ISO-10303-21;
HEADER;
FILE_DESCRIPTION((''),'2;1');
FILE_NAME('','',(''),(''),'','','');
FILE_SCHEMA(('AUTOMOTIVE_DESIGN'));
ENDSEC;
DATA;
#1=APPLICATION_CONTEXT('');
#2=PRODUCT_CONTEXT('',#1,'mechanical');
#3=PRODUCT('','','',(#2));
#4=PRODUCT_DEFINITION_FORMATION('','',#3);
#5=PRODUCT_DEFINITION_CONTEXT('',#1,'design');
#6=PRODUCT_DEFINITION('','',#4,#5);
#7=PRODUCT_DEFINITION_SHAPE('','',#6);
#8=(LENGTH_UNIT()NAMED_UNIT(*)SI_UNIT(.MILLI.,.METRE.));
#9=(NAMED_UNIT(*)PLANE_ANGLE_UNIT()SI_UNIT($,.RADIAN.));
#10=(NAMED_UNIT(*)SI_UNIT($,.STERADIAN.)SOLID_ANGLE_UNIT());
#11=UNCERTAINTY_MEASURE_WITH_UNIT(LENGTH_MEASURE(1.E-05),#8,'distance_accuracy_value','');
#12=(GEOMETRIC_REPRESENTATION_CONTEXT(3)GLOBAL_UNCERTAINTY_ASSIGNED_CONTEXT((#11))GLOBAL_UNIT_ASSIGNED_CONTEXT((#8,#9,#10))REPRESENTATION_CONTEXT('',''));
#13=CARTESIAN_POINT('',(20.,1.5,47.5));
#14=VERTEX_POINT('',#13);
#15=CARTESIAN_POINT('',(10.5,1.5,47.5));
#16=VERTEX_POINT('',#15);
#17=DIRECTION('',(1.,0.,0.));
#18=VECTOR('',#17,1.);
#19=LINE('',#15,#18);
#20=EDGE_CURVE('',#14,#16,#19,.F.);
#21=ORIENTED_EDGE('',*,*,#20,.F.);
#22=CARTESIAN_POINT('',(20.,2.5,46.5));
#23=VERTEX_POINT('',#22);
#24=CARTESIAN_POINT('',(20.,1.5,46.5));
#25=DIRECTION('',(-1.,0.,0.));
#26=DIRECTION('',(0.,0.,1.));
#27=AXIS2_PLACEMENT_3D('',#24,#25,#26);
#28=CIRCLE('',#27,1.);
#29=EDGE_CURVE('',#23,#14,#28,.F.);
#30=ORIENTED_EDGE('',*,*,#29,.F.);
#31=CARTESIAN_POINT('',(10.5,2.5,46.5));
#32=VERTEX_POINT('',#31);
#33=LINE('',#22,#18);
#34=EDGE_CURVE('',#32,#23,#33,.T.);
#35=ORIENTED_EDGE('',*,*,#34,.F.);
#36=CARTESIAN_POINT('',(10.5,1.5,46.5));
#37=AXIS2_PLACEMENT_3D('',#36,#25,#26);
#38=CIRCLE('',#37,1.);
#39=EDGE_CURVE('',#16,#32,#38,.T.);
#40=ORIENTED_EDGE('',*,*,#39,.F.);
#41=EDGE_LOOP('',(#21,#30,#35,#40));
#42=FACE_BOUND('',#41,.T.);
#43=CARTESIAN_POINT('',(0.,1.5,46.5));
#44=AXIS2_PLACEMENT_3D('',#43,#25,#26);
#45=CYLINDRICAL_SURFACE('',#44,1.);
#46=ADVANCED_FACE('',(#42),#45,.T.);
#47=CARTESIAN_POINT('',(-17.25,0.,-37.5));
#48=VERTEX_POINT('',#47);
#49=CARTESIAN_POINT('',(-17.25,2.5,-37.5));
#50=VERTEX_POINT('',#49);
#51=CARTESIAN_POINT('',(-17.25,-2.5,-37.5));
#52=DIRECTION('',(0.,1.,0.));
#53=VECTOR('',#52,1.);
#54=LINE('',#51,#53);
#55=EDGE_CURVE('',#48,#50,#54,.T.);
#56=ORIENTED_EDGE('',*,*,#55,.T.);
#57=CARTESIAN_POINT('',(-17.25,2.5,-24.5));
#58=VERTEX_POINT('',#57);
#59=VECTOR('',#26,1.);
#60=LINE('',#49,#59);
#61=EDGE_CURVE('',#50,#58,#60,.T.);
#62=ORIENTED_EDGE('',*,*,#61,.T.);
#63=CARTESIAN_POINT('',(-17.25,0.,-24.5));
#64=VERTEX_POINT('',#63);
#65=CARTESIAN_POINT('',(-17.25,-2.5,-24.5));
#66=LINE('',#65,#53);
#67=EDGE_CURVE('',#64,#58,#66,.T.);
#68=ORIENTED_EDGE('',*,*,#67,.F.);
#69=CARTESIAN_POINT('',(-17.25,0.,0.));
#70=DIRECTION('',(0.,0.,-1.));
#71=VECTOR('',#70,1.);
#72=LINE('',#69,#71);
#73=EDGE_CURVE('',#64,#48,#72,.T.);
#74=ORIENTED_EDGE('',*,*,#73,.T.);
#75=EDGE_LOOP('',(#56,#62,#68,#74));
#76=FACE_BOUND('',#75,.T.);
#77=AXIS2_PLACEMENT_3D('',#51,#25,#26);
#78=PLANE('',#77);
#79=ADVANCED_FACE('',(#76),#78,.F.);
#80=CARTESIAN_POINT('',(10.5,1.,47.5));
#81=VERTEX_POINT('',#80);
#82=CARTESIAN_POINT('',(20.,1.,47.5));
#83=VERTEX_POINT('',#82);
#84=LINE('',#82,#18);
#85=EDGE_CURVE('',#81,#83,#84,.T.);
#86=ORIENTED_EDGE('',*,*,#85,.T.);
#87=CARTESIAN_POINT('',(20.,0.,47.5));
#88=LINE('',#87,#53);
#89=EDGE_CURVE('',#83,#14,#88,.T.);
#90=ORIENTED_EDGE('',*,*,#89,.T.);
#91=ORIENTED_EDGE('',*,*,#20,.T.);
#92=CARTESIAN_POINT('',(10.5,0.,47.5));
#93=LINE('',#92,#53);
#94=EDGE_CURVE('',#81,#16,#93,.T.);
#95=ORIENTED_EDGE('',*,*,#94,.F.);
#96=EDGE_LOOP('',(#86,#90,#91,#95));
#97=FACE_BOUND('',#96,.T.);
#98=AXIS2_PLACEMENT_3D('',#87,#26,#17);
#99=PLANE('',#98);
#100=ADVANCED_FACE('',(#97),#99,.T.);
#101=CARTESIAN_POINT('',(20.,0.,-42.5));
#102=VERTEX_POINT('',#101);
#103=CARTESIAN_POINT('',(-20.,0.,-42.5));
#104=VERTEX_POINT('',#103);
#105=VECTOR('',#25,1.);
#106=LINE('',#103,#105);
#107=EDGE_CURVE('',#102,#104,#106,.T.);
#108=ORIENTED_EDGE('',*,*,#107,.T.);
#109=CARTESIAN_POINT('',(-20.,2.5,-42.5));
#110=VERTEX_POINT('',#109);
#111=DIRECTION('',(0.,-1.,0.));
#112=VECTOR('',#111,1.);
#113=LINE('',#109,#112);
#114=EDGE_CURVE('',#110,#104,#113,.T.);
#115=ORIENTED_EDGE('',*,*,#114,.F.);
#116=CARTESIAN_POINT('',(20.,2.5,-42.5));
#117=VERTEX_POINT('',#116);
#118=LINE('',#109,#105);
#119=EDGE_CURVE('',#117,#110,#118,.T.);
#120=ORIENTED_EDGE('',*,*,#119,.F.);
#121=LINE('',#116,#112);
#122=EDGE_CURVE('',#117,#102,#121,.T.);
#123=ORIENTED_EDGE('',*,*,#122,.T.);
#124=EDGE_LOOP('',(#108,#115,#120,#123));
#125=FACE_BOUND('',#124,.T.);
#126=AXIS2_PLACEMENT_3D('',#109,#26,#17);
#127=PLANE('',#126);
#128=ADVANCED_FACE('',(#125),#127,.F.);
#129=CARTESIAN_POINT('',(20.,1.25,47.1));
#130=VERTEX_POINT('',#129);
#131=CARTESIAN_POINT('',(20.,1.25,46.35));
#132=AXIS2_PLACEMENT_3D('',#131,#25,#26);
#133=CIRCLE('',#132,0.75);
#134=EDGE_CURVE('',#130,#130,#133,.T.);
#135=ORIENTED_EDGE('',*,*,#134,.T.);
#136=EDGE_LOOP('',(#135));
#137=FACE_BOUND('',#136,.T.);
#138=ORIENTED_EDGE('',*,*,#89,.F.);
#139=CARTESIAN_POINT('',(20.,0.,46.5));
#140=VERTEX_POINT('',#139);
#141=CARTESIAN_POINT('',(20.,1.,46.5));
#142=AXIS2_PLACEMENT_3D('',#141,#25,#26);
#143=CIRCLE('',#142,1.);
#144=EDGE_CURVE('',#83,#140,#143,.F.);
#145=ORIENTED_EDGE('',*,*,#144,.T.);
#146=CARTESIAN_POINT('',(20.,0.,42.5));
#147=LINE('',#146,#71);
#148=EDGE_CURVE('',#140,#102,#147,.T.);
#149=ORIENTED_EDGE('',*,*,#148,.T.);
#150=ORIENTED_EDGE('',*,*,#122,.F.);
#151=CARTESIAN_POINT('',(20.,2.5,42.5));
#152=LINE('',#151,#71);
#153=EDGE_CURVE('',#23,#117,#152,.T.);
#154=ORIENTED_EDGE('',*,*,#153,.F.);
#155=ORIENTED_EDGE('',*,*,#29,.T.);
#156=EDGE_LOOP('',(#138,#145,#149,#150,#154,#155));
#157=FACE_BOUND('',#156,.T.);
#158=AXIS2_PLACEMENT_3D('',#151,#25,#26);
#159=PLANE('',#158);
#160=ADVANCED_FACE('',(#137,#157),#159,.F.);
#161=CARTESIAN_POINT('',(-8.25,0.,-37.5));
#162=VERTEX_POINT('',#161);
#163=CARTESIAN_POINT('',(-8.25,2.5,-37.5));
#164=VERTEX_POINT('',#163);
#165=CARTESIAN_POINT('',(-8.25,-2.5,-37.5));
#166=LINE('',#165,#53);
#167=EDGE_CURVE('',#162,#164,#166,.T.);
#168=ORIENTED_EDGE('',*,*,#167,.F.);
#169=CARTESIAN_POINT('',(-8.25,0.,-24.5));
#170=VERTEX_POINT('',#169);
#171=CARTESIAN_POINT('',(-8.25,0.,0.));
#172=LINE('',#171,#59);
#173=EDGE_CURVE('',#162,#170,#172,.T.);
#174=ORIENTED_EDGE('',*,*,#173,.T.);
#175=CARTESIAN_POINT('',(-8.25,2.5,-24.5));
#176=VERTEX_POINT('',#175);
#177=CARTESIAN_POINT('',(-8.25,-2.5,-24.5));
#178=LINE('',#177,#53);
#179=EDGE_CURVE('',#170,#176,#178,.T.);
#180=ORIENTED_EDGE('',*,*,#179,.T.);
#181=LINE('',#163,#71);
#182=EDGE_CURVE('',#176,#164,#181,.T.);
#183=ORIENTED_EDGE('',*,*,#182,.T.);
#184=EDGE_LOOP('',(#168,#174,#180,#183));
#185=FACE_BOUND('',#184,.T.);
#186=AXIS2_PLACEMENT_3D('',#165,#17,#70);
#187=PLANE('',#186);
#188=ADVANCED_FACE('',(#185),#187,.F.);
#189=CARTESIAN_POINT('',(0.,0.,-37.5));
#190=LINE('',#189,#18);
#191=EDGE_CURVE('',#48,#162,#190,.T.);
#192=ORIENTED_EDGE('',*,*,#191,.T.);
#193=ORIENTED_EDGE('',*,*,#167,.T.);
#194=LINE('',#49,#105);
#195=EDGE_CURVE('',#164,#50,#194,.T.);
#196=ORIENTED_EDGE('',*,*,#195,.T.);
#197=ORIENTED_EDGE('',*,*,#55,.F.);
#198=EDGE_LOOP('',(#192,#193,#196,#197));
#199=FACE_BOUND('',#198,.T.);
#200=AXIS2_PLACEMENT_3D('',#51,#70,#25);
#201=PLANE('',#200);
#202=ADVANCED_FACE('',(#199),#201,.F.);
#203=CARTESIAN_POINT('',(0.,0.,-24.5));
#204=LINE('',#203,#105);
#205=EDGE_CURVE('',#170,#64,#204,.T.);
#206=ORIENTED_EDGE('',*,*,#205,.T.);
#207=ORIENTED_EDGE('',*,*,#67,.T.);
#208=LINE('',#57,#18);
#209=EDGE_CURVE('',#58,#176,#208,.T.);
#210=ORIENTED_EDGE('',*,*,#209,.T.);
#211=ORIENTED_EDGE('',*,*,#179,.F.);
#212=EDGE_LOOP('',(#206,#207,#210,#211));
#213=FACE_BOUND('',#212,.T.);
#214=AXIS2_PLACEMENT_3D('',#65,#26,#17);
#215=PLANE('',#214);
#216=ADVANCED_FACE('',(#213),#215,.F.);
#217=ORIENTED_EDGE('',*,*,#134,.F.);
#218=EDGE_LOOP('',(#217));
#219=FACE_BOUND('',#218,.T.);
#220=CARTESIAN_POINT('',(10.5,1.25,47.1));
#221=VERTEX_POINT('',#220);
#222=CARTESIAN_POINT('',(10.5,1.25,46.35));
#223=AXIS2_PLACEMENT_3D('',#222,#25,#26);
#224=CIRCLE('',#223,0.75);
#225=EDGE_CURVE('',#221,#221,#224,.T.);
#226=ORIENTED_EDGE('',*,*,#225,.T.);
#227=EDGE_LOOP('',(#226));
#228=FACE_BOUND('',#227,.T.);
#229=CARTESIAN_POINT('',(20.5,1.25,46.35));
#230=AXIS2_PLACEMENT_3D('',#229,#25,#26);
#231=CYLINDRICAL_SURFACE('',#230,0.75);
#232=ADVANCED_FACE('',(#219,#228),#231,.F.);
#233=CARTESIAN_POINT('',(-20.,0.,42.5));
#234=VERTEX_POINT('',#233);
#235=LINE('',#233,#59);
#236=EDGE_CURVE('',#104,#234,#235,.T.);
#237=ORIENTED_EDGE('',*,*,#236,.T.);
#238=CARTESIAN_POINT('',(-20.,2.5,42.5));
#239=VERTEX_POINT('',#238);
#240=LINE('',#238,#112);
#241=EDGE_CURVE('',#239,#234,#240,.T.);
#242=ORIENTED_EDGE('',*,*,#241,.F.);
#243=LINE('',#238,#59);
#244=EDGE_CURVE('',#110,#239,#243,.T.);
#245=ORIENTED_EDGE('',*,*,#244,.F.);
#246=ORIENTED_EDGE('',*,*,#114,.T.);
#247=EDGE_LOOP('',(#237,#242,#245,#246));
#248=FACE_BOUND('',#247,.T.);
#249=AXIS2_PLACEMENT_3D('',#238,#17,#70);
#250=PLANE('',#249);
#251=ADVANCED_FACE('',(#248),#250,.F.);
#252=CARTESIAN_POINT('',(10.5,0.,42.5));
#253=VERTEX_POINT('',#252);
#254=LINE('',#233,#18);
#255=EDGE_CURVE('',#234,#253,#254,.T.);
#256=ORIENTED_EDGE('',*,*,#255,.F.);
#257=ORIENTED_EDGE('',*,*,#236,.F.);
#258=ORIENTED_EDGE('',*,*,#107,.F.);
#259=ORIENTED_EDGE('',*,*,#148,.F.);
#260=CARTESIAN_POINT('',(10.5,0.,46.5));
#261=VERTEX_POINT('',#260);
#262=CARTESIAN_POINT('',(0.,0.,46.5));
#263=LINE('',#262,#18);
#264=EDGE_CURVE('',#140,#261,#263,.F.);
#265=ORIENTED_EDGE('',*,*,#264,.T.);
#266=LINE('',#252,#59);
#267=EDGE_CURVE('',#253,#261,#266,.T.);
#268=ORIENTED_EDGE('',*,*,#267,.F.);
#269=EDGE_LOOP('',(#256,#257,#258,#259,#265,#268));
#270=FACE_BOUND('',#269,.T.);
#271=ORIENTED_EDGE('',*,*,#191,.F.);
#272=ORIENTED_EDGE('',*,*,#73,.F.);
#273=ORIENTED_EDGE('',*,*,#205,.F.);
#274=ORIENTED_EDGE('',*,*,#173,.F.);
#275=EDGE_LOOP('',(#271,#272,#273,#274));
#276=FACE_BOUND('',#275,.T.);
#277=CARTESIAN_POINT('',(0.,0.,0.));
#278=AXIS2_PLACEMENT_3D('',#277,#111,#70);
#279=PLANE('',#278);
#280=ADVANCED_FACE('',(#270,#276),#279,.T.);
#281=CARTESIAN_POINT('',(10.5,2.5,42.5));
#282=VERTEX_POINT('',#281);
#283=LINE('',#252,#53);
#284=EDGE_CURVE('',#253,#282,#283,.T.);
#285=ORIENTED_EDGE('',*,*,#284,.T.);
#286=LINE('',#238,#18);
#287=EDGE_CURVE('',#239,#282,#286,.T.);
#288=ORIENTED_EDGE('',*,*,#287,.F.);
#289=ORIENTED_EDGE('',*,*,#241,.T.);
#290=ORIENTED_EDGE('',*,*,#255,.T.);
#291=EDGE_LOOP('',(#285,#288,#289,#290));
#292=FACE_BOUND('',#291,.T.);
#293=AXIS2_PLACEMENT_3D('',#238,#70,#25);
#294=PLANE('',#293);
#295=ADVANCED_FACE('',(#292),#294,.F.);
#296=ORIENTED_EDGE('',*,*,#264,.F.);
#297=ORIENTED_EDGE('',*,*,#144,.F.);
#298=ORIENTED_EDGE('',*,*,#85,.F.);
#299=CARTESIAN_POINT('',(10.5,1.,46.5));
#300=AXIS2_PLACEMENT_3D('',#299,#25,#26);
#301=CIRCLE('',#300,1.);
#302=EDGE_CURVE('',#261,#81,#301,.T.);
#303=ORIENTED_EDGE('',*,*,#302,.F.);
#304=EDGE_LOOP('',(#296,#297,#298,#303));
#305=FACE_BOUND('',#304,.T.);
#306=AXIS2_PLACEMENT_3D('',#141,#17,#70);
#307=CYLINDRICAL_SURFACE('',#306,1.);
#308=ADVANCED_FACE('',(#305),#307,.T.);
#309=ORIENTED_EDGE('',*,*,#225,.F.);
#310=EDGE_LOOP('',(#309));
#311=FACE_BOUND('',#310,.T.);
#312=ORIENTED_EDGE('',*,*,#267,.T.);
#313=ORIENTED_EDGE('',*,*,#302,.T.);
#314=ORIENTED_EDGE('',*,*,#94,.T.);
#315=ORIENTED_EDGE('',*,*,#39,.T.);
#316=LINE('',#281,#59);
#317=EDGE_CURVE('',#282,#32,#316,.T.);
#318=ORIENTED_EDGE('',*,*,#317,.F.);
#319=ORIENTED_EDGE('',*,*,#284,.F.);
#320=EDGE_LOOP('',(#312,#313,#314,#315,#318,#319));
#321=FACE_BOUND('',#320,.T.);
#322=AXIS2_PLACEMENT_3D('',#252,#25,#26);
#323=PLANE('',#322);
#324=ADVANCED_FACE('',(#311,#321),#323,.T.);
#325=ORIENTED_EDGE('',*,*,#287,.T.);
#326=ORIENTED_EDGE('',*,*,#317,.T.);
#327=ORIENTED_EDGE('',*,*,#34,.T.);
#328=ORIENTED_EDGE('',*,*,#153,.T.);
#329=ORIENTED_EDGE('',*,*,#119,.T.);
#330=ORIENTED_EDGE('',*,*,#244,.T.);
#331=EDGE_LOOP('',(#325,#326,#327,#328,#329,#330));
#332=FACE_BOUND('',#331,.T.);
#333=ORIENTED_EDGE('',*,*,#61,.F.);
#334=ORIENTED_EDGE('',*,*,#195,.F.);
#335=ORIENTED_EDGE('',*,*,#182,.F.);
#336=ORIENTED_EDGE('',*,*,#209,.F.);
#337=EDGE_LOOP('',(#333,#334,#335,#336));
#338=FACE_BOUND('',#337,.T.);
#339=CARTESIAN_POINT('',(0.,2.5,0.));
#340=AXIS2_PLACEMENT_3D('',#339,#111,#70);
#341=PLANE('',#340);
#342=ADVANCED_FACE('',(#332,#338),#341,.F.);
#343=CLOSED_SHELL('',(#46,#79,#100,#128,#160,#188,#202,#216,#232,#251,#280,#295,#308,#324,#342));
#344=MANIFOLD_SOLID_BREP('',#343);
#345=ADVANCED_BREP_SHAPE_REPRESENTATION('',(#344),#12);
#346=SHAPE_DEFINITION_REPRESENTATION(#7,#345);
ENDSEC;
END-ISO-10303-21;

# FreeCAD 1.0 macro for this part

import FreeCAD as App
import Part
import Sketcher
from FreeCAD import Vector


def edges_at(feature, points):
    """Names of the edges that pass closest to the given points."""
    edges = feature.Shape.Edges
    near = lambda p: min(range(len(edges)), key=lambda i: edges[i].distToShape(Part.Vertex(*p))[0])
    return sorted({f"Edge{near(p) + 1}" for p in points})

doc = App.newDocument("Part")
body = doc.addObject("PartDesign::Body", "Body")

# Sketch on XZ plane
sketch1 = body.newObject("Sketcher::SketchObject", "Sketch")
sketch1.AttachmentSupport = (doc.getObject("XZ_Plane"), [""])
sketch1.MapMode = "FlatFace"
sketch1.addGeometry([
    Part.LineSegment(Vector(-20, -42, 0), Vector(-20, 42, 0)),
    Part.LineSegment(Vector(-20, 42, 0), Vector(20, 42, 0)),
    Part.LineSegment(Vector(20, 42, 0), Vector(20, -42, 0)),
    Part.LineSegment(Vector(20, -42, 0), Vector(-20, -42, 0)),
], False)
sketch1.addConstraint([
    Sketcher.Constraint("Coincident", 0, 2, 1, 1),
    Sketcher.Constraint("Coincident", 1, 2, 2, 1),
    Sketcher.Constraint("Coincident", 2, 2, 3, 1),
    Sketcher.Constraint("Coincident", 3, 2, 0, 1),
    Sketcher.Constraint("Vertical", 0),
    Sketcher.Constraint("Horizontal", 1),
    Sketcher.Constraint("Vertical", 2),
    Sketcher.Constraint("Horizontal", 3),
    Sketcher.Constraint("Symmetric", 0, 2, 2, 2, -1, 1),
    Sketcher.Constraint("DistanceX", 1, 1, 1, 2, 40.0),
    Sketcher.Constraint("DistanceY", 0, 1, 0, 2, 85.0),
])
pad1 = body.newObject("PartDesign::Pad", "Pad")
pad1.Profile = sketch1
pad1.Length = 2.5
pad1.Reversed = True

# Sketch on XZ plane
sketch2 = body.newObject("Sketcher::SketchObject", "Sketch001")
sketch2.AttachmentSupport = (doc.getObject("XZ_Plane"), [""])
sketch2.MapMode = "FlatFace"
sketch2.AttachmentOffset = App.Placement(Vector(0, 0, -2.5), App.Rotation())
sketch2.addGeometry([
    Part.LineSegment(Vector(10, 42, 0), Vector(10, 48, 0)),
    Part.LineSegment(Vector(10, 48, 0), Vector(20, 48, 0)),
    Part.LineSegment(Vector(20, 48, 0), Vector(20, 42, 0)),
    Part.LineSegment(Vector(20, 42, 0), Vector(10, 42, 0)),
], False)
sketch2.addConstraint([
    Sketcher.Constraint("Coincident", 0, 2, 1, 1),
    Sketcher.Constraint("Coincident", 1, 2, 2, 1),
    Sketcher.Constraint("Coincident", 2, 2, 3, 1),
    Sketcher.Constraint("Coincident", 3, 2, 0, 1),
    Sketcher.Constraint("Vertical", 0),
    Sketcher.Constraint("Horizontal", 1),
    Sketcher.Constraint("Vertical", 2),
    Sketcher.Constraint("Horizontal", 3),
    Sketcher.Constraint("DistanceY", 0, 1, 0, 2, 5.0),
    Sketcher.Constraint("DistanceX", 1, 1, 1, 2, 9.5),
    Sketcher.Constraint("DistanceX", -1, 1, 1, 2, 20.0),
    Sketcher.Constraint("DistanceY", -1, 1, 0, 2, 47.5),
])
pad2 = body.newObject("PartDesign::Pad", "Pad001")
pad2.Profile = sketch2
pad2.Length = 2.5

# Sketch on XZ plane
sketch3 = body.newObject("Sketcher::SketchObject", "Sketch002")
sketch3.AttachmentSupport = (doc.getObject("XZ_Plane"), [""])
sketch3.MapMode = "FlatFace"
sketch3.AttachmentOffset = App.Placement(Vector(0, 0, -2.5), App.Rotation())
sketch3.addGeometry([
    Part.LineSegment(Vector(-17, -38, 0), Vector(-17, -24, 0)),
    Part.LineSegment(Vector(-17, -24, 0), Vector(-8, -24, 0)),
    Part.LineSegment(Vector(-8, -24, 0), Vector(-8, -38, 0)),
    Part.LineSegment(Vector(-8, -38, 0), Vector(-17, -38, 0)),
], False)
sketch3.addConstraint([
    Sketcher.Constraint("Coincident", 0, 2, 1, 1),
    Sketcher.Constraint("Coincident", 1, 2, 2, 1),
    Sketcher.Constraint("Coincident", 2, 2, 3, 1),
    Sketcher.Constraint("Coincident", 3, 2, 0, 1),
    Sketcher.Constraint("Vertical", 0),
    Sketcher.Constraint("Horizontal", 1),
    Sketcher.Constraint("Vertical", 2),
    Sketcher.Constraint("Horizontal", 3),
    Sketcher.Constraint("DistanceX", 1, 1, 1, 2, 9.0),
    Sketcher.Constraint("DistanceY", 0, 1, 0, 2, 13.0),
    Sketcher.Constraint("DistanceY", 0, 2, -1, 1, 24.5),
    Sketcher.Constraint("DistanceX", 0, 2, -1, 1, 17.25),
])
pocket1 = body.newObject("PartDesign::Pocket", "Pocket")
pocket1.Profile = sketch3
pocket1.Length = 5
pocket1.Reversed = True
doc.recompute()

fillet = body.newObject("PartDesign::Fillet", "Fillet")
fillet.Base = (pocket1, edges_at(pocket1, [(15.25, 2.5, 47.5)]))
fillet.Radius = 1
doc.recompute()

fillet2 = body.newObject("PartDesign::Fillet", "Fillet001")
fillet2.Base = (fillet, edges_at(fillet, [(15.25, 0, 47.5)]))
fillet2.Radius = 1

# Sketch on YZ plane
sketch4 = body.newObject("Sketcher::SketchObject", "Sketch003")
sketch4.AttachmentSupport = (doc.getObject("YZ_Plane"), [""])
sketch4.MapMode = "FlatFace"
sketch4.AttachmentOffset = App.Placement(Vector(0, 0, 10.5), App.Rotation())
sketch4.addGeometry(Part.Circle(Vector(1.2, 46.4, 0), Vector(0, 0, 1), 0.8), False)
sketch4.addConstraint([
    Sketcher.Constraint("Diameter", 0, 1.5),
    Sketcher.Constraint("DistanceX", -1, 1, 0, 3, 1.25),
    Sketcher.Constraint("DistanceY", -1, 1, 0, 3, 46.35),
])
pocket2 = body.newObject("PartDesign::Pocket", "Pocket001")
pocket2.Profile = sketch4
pocket2.Length = 10
pocket2.Reversed = True

doc.recompute()
